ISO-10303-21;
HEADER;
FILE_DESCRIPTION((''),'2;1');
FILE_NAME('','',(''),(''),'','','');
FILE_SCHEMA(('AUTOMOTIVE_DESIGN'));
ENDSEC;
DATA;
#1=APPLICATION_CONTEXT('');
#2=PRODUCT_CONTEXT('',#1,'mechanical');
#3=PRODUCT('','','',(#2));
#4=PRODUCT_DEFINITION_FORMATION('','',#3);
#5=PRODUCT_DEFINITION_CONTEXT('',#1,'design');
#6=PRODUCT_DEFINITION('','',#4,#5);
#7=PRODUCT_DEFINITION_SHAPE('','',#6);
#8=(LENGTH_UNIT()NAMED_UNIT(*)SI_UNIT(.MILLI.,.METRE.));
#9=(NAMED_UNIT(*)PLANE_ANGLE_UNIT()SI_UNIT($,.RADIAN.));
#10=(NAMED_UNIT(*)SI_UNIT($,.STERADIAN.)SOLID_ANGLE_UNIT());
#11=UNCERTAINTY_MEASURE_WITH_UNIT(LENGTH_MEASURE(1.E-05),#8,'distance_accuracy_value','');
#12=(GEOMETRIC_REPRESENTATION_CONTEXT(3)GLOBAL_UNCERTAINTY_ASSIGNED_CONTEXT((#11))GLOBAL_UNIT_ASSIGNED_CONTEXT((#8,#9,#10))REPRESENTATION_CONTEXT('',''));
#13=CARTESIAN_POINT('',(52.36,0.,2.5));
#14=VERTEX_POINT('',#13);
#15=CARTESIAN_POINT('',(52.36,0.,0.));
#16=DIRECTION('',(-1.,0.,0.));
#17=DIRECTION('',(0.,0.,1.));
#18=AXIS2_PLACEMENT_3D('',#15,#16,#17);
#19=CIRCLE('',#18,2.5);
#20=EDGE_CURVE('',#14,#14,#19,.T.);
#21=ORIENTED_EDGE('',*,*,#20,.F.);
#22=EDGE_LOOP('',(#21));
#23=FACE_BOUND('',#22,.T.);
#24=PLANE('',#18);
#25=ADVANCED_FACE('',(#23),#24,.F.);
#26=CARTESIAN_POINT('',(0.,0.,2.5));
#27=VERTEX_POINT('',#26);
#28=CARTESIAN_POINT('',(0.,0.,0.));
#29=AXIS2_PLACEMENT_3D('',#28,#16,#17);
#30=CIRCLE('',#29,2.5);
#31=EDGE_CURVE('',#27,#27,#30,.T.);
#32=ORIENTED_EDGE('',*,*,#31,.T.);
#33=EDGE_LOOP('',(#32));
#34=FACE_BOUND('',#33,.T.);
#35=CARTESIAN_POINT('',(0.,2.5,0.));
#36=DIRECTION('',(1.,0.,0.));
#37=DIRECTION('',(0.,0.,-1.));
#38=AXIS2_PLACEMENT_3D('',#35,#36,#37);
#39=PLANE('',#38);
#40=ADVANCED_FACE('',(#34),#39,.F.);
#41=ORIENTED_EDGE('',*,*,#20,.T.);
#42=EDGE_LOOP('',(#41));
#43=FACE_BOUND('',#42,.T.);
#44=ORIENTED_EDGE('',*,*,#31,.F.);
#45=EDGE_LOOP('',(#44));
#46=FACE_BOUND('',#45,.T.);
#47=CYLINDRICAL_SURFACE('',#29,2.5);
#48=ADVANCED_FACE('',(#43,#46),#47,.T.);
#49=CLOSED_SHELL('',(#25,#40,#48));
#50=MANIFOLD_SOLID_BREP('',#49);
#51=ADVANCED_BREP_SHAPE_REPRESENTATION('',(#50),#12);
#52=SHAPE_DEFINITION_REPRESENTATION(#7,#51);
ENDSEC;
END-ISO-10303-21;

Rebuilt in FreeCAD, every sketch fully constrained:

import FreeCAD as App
import Part
import Sketcher

V = App.Vector
Q = App.Units.Quantity

doc = App.newDocument("Part")
body = doc.addObject("PartDesign::Body", "Body")

sketch1 = body.newObject("Sketcher::SketchObject", "Sketch")
sketch1.AttachmentSupport = (doc.getObject("XY_Plane"), [""])
sketch1.MapMode = "FlatFace"
sketch1.addGeometry(Part.LineSegment(V(0, 2.5, 0), V(0, 0, 0)), False)
sketch1.addGeometry(Part.LineSegment(V(0, 0, 0), V(52.4, 0, 0)), False)
sketch1.addGeometry(Part.LineSegment(V(52.4, 0, 0), V(52.4, 2.5, 0)), False)
sketch1.addGeometry(Part.LineSegment(V(52.4, 2.5, 0), V(0, 2.5, 0)), False)
sketch1.addConstraint(Sketcher.Constraint("Coincident", 0, 2, 1, 1))
sketch1.addConstraint(Sketcher.Constraint("Coincident", 1, 2, 2, 1))
sketch1.addConstraint(Sketcher.Constraint("Coincident", 2, 2, 3, 1))
sketch1.addConstraint(Sketcher.Constraint("Coincident", 3, 2, 0, 1))
sketch1.addConstraint(Sketcher.Constraint("Vertical", 0))
sketch1.addConstraint(Sketcher.Constraint("Horizontal", 1))
sketch1.addConstraint(Sketcher.Constraint("Vertical", 2))
sketch1.addConstraint(Sketcher.Constraint("Horizontal", 3))
sketch1.addConstraint(Sketcher.Constraint("Coincident", 0, 2, -1, 1))
sketch1.addConstraint(Sketcher.Constraint("DistanceY", 0, 2, 0, 1, Q("2.5 mm")))
sketch1.addConstraint(Sketcher.Constraint("DistanceX", 1, 1, 1, 2, Q("52.36 mm")))
revolution = body.newObject("PartDesign::Revolution", "Revolution")
revolution.Profile = sketch1
revolution.ReferenceAxis = (sketch1, ["H_Axis"])
revolution.Angle = 360

doc.recompute()
